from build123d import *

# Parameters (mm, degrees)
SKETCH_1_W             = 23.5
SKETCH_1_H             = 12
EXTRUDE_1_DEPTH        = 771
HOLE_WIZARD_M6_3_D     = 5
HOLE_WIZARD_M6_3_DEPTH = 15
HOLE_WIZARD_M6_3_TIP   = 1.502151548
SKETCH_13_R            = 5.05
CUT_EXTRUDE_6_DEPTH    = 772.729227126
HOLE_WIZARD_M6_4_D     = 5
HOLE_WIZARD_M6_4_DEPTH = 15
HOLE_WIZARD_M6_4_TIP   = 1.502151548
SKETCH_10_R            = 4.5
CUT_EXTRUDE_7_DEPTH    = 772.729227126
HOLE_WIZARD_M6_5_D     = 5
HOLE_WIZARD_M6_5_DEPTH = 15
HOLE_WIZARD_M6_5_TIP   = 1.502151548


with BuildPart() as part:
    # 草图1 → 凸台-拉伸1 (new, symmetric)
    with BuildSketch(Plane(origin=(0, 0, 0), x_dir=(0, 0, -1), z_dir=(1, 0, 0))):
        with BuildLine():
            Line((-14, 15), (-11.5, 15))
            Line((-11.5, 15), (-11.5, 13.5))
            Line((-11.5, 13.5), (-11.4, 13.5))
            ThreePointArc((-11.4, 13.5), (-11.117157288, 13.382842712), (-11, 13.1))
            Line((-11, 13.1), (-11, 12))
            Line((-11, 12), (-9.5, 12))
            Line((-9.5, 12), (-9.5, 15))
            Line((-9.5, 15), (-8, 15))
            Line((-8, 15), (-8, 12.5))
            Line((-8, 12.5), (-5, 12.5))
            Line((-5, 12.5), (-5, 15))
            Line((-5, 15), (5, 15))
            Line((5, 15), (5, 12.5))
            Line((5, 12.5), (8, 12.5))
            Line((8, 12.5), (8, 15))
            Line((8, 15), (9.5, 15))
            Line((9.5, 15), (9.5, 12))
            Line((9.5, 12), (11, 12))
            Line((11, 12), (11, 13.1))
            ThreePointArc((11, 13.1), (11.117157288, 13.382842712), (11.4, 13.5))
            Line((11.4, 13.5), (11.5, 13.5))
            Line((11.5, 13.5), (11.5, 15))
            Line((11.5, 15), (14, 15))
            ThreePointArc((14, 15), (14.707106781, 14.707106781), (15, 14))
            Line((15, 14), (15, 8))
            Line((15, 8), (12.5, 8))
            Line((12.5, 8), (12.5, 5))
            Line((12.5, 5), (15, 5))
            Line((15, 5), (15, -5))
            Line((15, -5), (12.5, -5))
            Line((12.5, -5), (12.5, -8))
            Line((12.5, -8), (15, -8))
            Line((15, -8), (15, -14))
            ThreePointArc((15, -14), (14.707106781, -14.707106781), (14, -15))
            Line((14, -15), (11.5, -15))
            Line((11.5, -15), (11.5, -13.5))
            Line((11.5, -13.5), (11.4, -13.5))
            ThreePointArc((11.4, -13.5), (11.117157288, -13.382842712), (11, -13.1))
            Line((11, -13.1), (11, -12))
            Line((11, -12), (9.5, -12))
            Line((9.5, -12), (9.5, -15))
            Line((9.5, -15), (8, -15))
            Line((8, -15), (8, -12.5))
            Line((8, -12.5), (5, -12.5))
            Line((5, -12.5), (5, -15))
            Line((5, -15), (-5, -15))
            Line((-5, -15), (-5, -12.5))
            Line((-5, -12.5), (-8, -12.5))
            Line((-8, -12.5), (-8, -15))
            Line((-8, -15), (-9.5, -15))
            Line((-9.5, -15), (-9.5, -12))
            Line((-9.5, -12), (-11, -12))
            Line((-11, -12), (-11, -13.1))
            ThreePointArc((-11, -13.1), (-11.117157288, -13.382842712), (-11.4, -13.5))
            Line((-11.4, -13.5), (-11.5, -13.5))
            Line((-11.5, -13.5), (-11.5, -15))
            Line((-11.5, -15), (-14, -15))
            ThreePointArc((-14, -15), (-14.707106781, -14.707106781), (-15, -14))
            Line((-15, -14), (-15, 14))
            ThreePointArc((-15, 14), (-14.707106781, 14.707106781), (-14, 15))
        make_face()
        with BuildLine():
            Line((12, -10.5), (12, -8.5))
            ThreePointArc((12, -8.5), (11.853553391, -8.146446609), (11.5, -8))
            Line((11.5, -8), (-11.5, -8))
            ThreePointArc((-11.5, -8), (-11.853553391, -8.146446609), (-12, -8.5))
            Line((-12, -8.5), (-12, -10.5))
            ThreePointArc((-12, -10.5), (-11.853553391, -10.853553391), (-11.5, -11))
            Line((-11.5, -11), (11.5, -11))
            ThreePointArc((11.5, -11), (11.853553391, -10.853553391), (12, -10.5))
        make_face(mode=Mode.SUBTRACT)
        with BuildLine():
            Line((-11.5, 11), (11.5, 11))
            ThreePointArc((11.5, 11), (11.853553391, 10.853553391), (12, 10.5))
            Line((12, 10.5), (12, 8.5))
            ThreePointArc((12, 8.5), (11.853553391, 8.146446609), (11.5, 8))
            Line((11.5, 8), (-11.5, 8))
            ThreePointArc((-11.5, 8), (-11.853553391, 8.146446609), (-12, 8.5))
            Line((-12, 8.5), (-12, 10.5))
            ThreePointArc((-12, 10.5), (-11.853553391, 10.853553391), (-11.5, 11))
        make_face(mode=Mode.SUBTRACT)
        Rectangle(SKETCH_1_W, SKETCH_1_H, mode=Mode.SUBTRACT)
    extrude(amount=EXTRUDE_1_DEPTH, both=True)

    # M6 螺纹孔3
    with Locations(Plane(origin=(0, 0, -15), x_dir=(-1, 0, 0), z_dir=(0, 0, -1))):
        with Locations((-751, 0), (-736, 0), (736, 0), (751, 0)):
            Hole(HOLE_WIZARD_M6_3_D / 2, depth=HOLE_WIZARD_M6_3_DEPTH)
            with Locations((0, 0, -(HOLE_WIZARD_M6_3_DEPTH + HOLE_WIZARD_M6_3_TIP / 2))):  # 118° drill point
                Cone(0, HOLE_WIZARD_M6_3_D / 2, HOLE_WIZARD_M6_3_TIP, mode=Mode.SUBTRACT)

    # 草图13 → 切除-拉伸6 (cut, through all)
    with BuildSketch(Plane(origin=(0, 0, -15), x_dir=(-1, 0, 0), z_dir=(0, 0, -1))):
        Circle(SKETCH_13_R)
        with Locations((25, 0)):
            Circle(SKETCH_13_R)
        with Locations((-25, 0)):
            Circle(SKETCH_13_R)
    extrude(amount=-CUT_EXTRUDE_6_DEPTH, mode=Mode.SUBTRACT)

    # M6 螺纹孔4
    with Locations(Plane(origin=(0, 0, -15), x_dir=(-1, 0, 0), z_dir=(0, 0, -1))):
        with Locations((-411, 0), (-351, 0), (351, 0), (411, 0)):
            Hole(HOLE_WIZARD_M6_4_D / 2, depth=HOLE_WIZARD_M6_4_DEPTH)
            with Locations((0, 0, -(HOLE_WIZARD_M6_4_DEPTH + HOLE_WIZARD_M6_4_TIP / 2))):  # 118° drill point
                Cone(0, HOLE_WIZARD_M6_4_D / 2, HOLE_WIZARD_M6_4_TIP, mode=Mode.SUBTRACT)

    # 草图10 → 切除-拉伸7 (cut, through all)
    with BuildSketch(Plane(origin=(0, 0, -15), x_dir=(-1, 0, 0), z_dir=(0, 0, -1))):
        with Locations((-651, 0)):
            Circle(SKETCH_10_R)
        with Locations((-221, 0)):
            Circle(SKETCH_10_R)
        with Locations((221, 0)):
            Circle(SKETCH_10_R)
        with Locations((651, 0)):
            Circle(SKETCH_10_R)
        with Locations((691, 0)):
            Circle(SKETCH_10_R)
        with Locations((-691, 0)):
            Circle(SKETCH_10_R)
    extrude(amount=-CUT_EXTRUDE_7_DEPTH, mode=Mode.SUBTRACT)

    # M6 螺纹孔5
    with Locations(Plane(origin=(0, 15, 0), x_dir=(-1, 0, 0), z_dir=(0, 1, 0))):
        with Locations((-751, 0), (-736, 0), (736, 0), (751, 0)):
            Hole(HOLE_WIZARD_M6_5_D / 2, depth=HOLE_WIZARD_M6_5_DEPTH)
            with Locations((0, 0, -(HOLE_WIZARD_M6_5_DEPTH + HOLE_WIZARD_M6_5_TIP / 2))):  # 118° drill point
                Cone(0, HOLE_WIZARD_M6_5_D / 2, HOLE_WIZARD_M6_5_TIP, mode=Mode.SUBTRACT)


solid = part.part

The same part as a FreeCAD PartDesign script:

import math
import FreeCAD as App
import Part
import Sketcher
from FreeCAD import Vector
Q = App.Units.Quantity


def add_polygon(sketch, points):
    """Adds a closed chain of lines whose ends are joined by coincident constraints."""
    first, n = sketch.GeometryCount, len(points)
    for a, b in zip(points, points[1:] + points[:1]):
        sketch.addGeometry(Part.LineSegment(App.Vector(*a, 0), App.Vector(*b, 0)), False)
    for i in range(n):
        sketch.addConstraint(Sketcher.Constraint("Coincident", first + i, 2, first + (i + 1) % n, 1))

doc = App.newDocument("Part")
body = doc.addObject("PartDesign::Body", "Body")

# Sketch on YZ plane
sketch1 = doc.addObject("Sketcher::SketchObject", "Sketch")
body.addObject(sketch1)
sketch1.AttachmentSupport = (doc.YZ_Plane, [""])
sketch1.MapMode = "FlatFace"
sketch1.addGeometry(Part.LineSegment(Vector(15, 11.5, 0), Vector(15, 14, 0)), False)  # 0
sketch1.addGeometry(Part.ArcOfCircle(Part.Circle(Vector(14, 14, 0), Vector(0, 0, 1), 1), math.radians(0), math.radians(90)), False)  # 1
sketch1.addGeometry(Part.LineSegment(Vector(14, 15, 0), Vector(-14, 15, 0)), False)  # 2
sketch1.addGeometry(Part.ArcOfCircle(Part.Circle(Vector(-14, 14, 0), Vector(0, 0, 1), 1), math.radians(90), math.radians(180)), False)  # 3
sketch1.addGeometry(Part.LineSegment(Vector(-15, 14, 0), Vector(-15, 11.5, 0)), False)  # 4
sketch1.addGeometry(Part.LineSegment(Vector(-15, 11.5, 0), Vector(-13.5, 11.5, 0)), False)  # 5
sketch1.addGeometry(Part.LineSegment(Vector(-13.5, 11.5, 0), Vector(-13.5, 11.4, 0)), False)  # 6
sketch1.addGeometry(Part.ArcOfCircle(Part.Circle(Vector(-13.1, 11.4, 0), Vector(0, 0, 1), 0.4), math.radians(-180), math.radians(-90)), False)  # 7
sketch1.addGeometry(Part.LineSegment(Vector(-13.1, 11, 0), Vector(-12, 11, 0)), False)  # 8
sketch1.addGeometry(Part.LineSegment(Vector(-12, 11, 0), Vector(-12, 9.5, 0)), False)  # 9
sketch1.addGeometry(Part.LineSegment(Vector(-12, 9.5, 0), Vector(-15, 9.5, 0)), False)  # 10
sketch1.addGeometry(Part.LineSegment(Vector(-15, 9.5, 0), Vector(-15, 8, 0)), False)  # 11
sketch1.addGeometry(Part.LineSegment(Vector(-15, 8, 0), Vector(-12.5, 8, 0)), False)  # 12
sketch1.addGeometry(Part.LineSegment(Vector(-12.5, 8, 0), Vector(-12.5, 5, 0)), False)  # 13
sketch1.addGeometry(Part.LineSegment(Vector(-12.5, 5, 0), Vector(-15, 5, 0)), False)  # 14
sketch1.addGeometry(Part.LineSegment(Vector(-15, 5, 0), Vector(-15, -5, 0)), False)  # 15
sketch1.addGeometry(Part.LineSegment(Vector(-15, -5, 0), Vector(-12.5, -5, 0)), False)  # 16
sketch1.addGeometry(Part.LineSegment(Vector(-12.5, -5, 0), Vector(-12.5, -8, 0)), False)  # 17
sketch1.addGeometry(Part.LineSegment(Vector(-12.5, -8, 0), Vector(-15, -8, 0)), False)  # 18
sketch1.addGeometry(Part.LineSegment(Vector(-15, -8, 0), Vector(-15, -9.5, 0)), False)  # 19
sketch1.addGeometry(Part.LineSegment(Vector(-15, -9.5, 0), Vector(-12, -9.5, 0)), False)  # 20
sketch1.addGeometry(Part.LineSegment(Vector(-12, -9.5, 0), Vector(-12, -11, 0)), False)  # 21
sketch1.addGeometry(Part.LineSegment(Vector(-12, -11, 0), Vector(-13.1, -11, 0)), False)  # 22
sketch1.addGeometry(Part.ArcOfCircle(Part.Circle(Vector(-13.1, -11.4, 0), Vector(0, 0, 1), 0.4), math.radians(90), math.radians(180)), False)  # 23
sketch1.addGeometry(Part.LineSegment(Vector(-13.5, -11.4, 0), Vector(-13.5, -11.5, 0)), False)  # 24
sketch1.addGeometry(Part.LineSegment(Vector(-13.5, -11.5, 0), Vector(-15, -11.5, 0)), False)  # 25
sketch1.addGeometry(Part.LineSegment(Vector(-15, -11.5, 0), Vector(-15, -14, 0)), False)  # 26
sketch1.addGeometry(Part.ArcOfCircle(Part.Circle(Vector(-14, -14, 0), Vector(0, 0, 1), 1), math.radians(-180), math.radians(-90)), False)  # 27
sketch1.addGeometry(Part.LineSegment(Vector(-14, -15, 0), Vector(-8, -15, 0)), False)  # 28
sketch1.addGeometry(Part.LineSegment(Vector(-8, -15, 0), Vector(-8, -12.5, 0)), False)  # 29
sketch1.addGeometry(Part.LineSegment(Vector(-8, -12.5, 0), Vector(-5, -12.5, 0)), False)  # 30
sketch1.addGeometry(Part.LineSegment(Vector(-5, -12.5, 0), Vector(-5, -15, 0)), False)  # 31
sketch1.addGeometry(Part.LineSegment(Vector(-5, -15, 0), Vector(5, -15, 0)), False)  # 32
sketch1.addGeometry(Part.LineSegment(Vector(5, -15, 0), Vector(5, -12.5, 0)), False)  # 33
sketch1.addGeometry(Part.LineSegment(Vector(5, -12.5, 0), Vector(8, -12.5, 0)), False)  # 34
sketch1.addGeometry(Part.LineSegment(Vector(8, -12.5, 0), Vector(8, -15, 0)), False)  # 35
sketch1.addGeometry(Part.LineSegment(Vector(8, -15, 0), Vector(14, -15, 0)), False)  # 36
sketch1.addGeometry(Part.ArcOfCircle(Part.Circle(Vector(14, -14, 0), Vector(0, 0, 1), 1), math.radians(-90), math.radians(0)), False)  # 37
sketch1.addGeometry(Part.LineSegment(Vector(15, -14, 0), Vector(15, -11.5, 0)), False)  # 38
sketch1.addGeometry(Part.LineSegment(Vector(15, -11.5, 0), Vector(13.5, -11.5, 0)), False)  # 39
sketch1.addGeometry(Part.LineSegment(Vector(13.5, -11.5, 0), Vector(13.5, -11.4, 0)), False)  # 40
sketch1.addGeometry(Part.ArcOfCircle(Part.Circle(Vector(13.1, -11.4, 0), Vector(0, 0, 1), 0.4), math.radians(0), math.radians(90)), False)  # 41
sketch1.addGeometry(Part.LineSegment(Vector(13.1, -11, 0), Vector(12, -11, 0)), False)  # 42
sketch1.addGeometry(Part.LineSegment(Vector(12, -11, 0), Vector(12, -9.5, 0)), False)  # 43
sketch1.addGeometry(Part.LineSegment(Vector(12, -9.5, 0), Vector(15, -9.5, 0)), False)  # 44
sketch1.addGeometry(Part.LineSegment(Vector(15, -9.5, 0), Vector(15, -8, 0)), False)  # 45
sketch1.addGeometry(Part.LineSegment(Vector(15, -8, 0), Vector(12.5, -8, 0)), False)  # 46
sketch1.addGeometry(Part.LineSegment(Vector(12.5, -8, 0), Vector(12.5, -5, 0)), False)  # 47
sketch1.addGeometry(Part.LineSegment(Vector(12.5, -5, 0), Vector(15, -5, 0)), False)  # 48
sketch1.addGeometry(Part.LineSegment(Vector(15, -5, 0), Vector(15, 5, 0)), False)  # 49
sketch1.addGeometry(Part.LineSegment(Vector(15, 5, 0), Vector(12.5, 5, 0)), False)  # 50
sketch1.addGeometry(Part.LineSegment(Vector(12.5, 5, 0), Vector(12.5, 8, 0)), False)  # 51
sketch1.addGeometry(Part.LineSegment(Vector(12.5, 8, 0), Vector(15, 8, 0)), False)  # 52
sketch1.addGeometry(Part.LineSegment(Vector(15, 8, 0), Vector(15, 9.5, 0)), False)  # 53
sketch1.addGeometry(Part.LineSegment(Vector(15, 9.5, 0), Vector(12, 9.5, 0)), False)  # 54
sketch1.addGeometry(Part.LineSegment(Vector(12, 9.5, 0), Vector(12, 11, 0)), False)  # 55
sketch1.addGeometry(Part.LineSegment(Vector(12, 11, 0), Vector(13.1, 11, 0)), False)  # 56
sketch1.addGeometry(Part.ArcOfCircle(Part.Circle(Vector(13.1, 11.4, 0), Vector(0, 0, 1), 0.4), math.radians(-90), math.radians(0)), False)  # 57
sketch1.addGeometry(Part.LineSegment(Vector(13.5, 11.4, 0), Vector(13.5, 11.5, 0)), False)  # 58
sketch1.addGeometry(Part.LineSegment(Vector(13.5, 11.5, 0), Vector(15, 11.5, 0)), False)  # 59
sketch1.addGeometry(Part.ArcOfCircle(Part.Circle(Vector(-10.5, -11.5, 0), Vector(0, 0, 1), 0.5), math.radians(180), math.radians(270)), False)  # 60
sketch1.addGeometry(Part.LineSegment(Vector(-11, -11.5, 0), Vector(-11, 11.5, 0)), False)  # 61
sketch1.addGeometry(Part.ArcOfCircle(Part.Circle(Vector(-10.5, 11.5, 0), Vector(0, 0, 1), 0.5), math.radians(90), math.radians(180)), False)  # 62
sketch1.addGeometry(Part.LineSegment(Vector(-10.5, 12, 0), Vector(-8.5, 12, 0)), False)  # 63
sketch1.addGeometry(Part.ArcOfCircle(Part.Circle(Vector(-8.5, 11.5, 0), Vector(0, 0, 1), 0.5), math.radians(0), math.radians(90)), False)  # 64
sketch1.addGeometry(Part.LineSegment(Vector(-8, 11.5, 0), Vector(-8, -11.5, 0)), False)  # 65
sketch1.addGeometry(Part.ArcOfCircle(Part.Circle(Vector(-8.5, -11.5, 0), Vector(0, 0, 1), 0.5), math.radians(-90), math.radians(0)), False)  # 66
sketch1.addGeometry(Part.LineSegment(Vector(-8.5, -12, 0), Vector(-10.5, -12, 0)), False)  # 67
add_polygon(sketch1, [(-6, 11.75), (6, 11.75), (6, -11.75), (-6, -11.75)])  # lines 68-71
sketch1.addGeometry(Part.LineSegment(Vector(11, 11.5, 0), Vector(11, -11.5, 0)), False)  # 72
sketch1.addGeometry(Part.ArcOfCircle(Part.Circle(Vector(10.5, -11.5, 0), Vector(0, 0, 1), 0.5), math.radians(-90), math.radians(0)), False)  # 73
sketch1.addGeometry(Part.LineSegment(Vector(10.5, -12, 0), Vector(8.5, -12, 0)), False)  # 74
sketch1.addGeometry(Part.ArcOfCircle(Part.Circle(Vector(8.5, -11.5, 0), Vector(0, 0, 1), 0.5), math.radians(180), math.radians(270)), False)  # 75
sketch1.addGeometry(Part.LineSegment(Vector(8, -11.5, 0), Vector(8, 11.5, 0)), False)  # 76
sketch1.addGeometry(Part.ArcOfCircle(Part.Circle(Vector(8.5, 11.5, 0), Vector(0, 0, 1), 0.5), math.radians(90), math.radians(180)), False)  # 77
sketch1.addGeometry(Part.LineSegment(Vector(8.5, 12, 0), Vector(10.5, 12, 0)), False)  # 78
sketch1.addGeometry(Part.ArcOfCircle(Part.Circle(Vector(10.5, 11.5, 0), Vector(0, 0, 1), 0.5), math.radians(0), math.radians(90)), False)  # 79
sketch1.addConstraint([
    Sketcher.Constraint("Tangent", 0, 2, 1, 1),
    Sketcher.Constraint("Tangent", 1, 2, 2, 1),
    Sketcher.Constraint("Tangent", 2, 2, 3, 1),
    Sketcher.Constraint("Tangent", 3, 2, 4, 1),
    Sketcher.Constraint("Coincident", 4, 2, 5, 1),
    Sketcher.Constraint("Coincident", 5, 2, 6, 1),
    Sketcher.Constraint("Tangent", 6, 2, 7, 1),
    Sketcher.Constraint("Tangent", 7, 2, 8, 1),
    Sketcher.Constraint("Coincident", 8, 2, 9, 1),
    Sketcher.Constraint("Coincident", 9, 2, 10, 1),
    Sketcher.Constraint("Coincident", 10, 2, 11, 1),
    Sketcher.Constraint("Coincident", 11, 2, 12, 1),
    Sketcher.Constraint("Coincident", 12, 2, 13, 1),
    Sketcher.Constraint("Coincident", 13, 2, 14, 1),
    Sketcher.Constraint("Coincident", 14, 2, 15, 1),
    Sketcher.Constraint("Coincident", 15, 2, 16, 1),
    Sketcher.Constraint("Coincident", 16, 2, 17, 1),
    Sketcher.Constraint("Coincident", 17, 2, 18, 1),
    Sketcher.Constraint("Coincident", 18, 2, 19, 1),
    Sketcher.Constraint("Coincident", 19, 2, 20, 1),
    Sketcher.Constraint("Coincident", 20, 2, 21, 1),
    Sketcher.Constraint("Coincident", 21, 2, 22, 1),
    Sketcher.Constraint("Tangent", 22, 2, 23, 1),
    Sketcher.Constraint("Tangent", 23, 2, 24, 1),
    Sketcher.Constraint("Coincident", 24, 2, 25, 1),
    Sketcher.Constraint("Coincident", 25, 2, 26, 1),
    Sketcher.Constraint("Tangent", 26, 2, 27, 1),
    Sketcher.Constraint("Tangent", 27, 2, 28, 1),
    Sketcher.Constraint("Coincident", 28, 2, 29, 1),
    Sketcher.Constraint("Coincident", 29, 2, 30, 1),
    Sketcher.Constraint("Coincident", 30, 2, 31, 1),
    Sketcher.Constraint("Coincident", 31, 2, 32, 1),
    Sketcher.Constraint("Coincident", 32, 2, 33, 1),
    Sketcher.Constraint("Coincident", 33, 2, 34, 1),
    Sketcher.Constraint("Coincident", 34, 2, 35, 1),
    Sketcher.Constraint("Coincident", 35, 2, 36, 1),
    Sketcher.Constraint("Tangent", 36, 2, 37, 1),
    Sketcher.Constraint("Tangent", 37, 2, 38, 1),
    Sketcher.Constraint("Coincident", 38, 2, 39, 1),
    Sketcher.Constraint("Coincident", 39, 2, 40, 1),
    Sketcher.Constraint("Tangent", 40, 2, 41, 1),
    Sketcher.Constraint("Tangent", 41, 2, 42, 1),
    Sketcher.Constraint("Coincident", 42, 2, 43, 1),
    Sketcher.Constraint("Coincident", 43, 2, 44, 1),
    Sketcher.Constraint("Coincident", 44, 2, 45, 1),
    Sketcher.Constraint("Coincident", 45, 2, 46, 1),
    Sketcher.Constraint("Coincident", 46, 2, 47, 1),
    Sketcher.Constraint("Coincident", 47, 2, 48, 1),
    Sketcher.Constraint("Coincident", 48, 2, 49, 1),
    Sketcher.Constraint("Coincident", 49, 2, 50, 1),
    Sketcher.Constraint("Coincident", 50, 2, 51, 1),
    Sketcher.Constraint("Coincident", 51, 2, 52, 1),
    Sketcher.Constraint("Coincident", 52, 2, 53, 1),
    Sketcher.Constraint("Coincident", 53, 2, 54, 1),
    Sketcher.Constraint("Coincident", 54, 2, 55, 1),
    Sketcher.Constraint("Coincident", 55, 2, 56, 1),
    Sketcher.Constraint("Tangent", 56, 2, 57, 1),
    Sketcher.Constraint("Tangent", 57, 2, 58, 1),
    Sketcher.Constraint("Coincident", 58, 2, 59, 1),
    Sketcher.Constraint("Coincident", 59, 2, 0, 1),
    Sketcher.Constraint("Tangent", 60, 1, 61, 1),
    Sketcher.Constraint("Tangent", 61, 2, 62, 2),
    Sketcher.Constraint("Tangent", 62, 1, 63, 1),
    Sketcher.Constraint("Tangent", 63, 2, 64, 2),
    Sketcher.Constraint("Tangent", 64, 1, 65, 1),
    Sketcher.Constraint("Tangent", 65, 2, 66, 2),
    Sketcher.Constraint("Tangent", 66, 1, 67, 1),
    Sketcher.Constraint("Tangent", 67, 2, 60, 2),
    Sketcher.Constraint("Tangent", 72, 2, 73, 2),
    Sketcher.Constraint("Tangent", 73, 1, 74, 1),
    Sketcher.Constraint("Tangent", 74, 2, 75, 2),
    Sketcher.Constraint("Tangent", 75, 1, 76, 1),
    Sketcher.Constraint("Tangent", 76, 2, 77, 2),
    Sketcher.Constraint("Tangent", 77, 1, 78, 1),
    Sketcher.Constraint("Tangent", 78, 2, 79, 2),
    Sketcher.Constraint("Tangent", 79, 1, 72, 1),
    Sketcher.Constraint("Vertical", 0),
    Sketcher.Constraint("Horizontal", 2),
    Sketcher.Constraint("Vertical", 4),
    Sketcher.Constraint("Horizontal", 5),
    Sketcher.Constraint("Vertical", 6),
    Sketcher.Constraint("Horizontal", 8),
    Sketcher.Constraint("Vertical", 9),
    Sketcher.Constraint("Horizontal", 10),
    Sketcher.Constraint("Vertical", 11),
    Sketcher.Constraint("Horizontal", 12),
    Sketcher.Constraint("Vertical", 13),
    Sketcher.Constraint("Horizontal", 14),
    Sketcher.Constraint("Vertical", 15),
    Sketcher.Constraint("Horizontal", 16),
    Sketcher.Constraint("Vertical", 17),
    Sketcher.Constraint("Horizontal", 18),
    Sketcher.Constraint("Vertical", 19),
    Sketcher.Constraint("Horizontal", 20),
    Sketcher.Constraint("Vertical", 21),
    Sketcher.Constraint("Horizontal", 22),
    Sketcher.Constraint("Vertical", 24),
    Sketcher.Constraint("Horizontal", 25),
    Sketcher.Constraint("Vertical", 26),
    Sketcher.Constraint("Horizontal", 28),
    Sketcher.Constraint("Vertical", 29),
    Sketcher.Constraint("Horizontal", 30),
    Sketcher.Constraint("Vertical", 31),
    Sketcher.Constraint("Horizontal", 32),
    Sketcher.Constraint("Vertical", 33),
    Sketcher.Constraint("Horizontal", 34),
    Sketcher.Constraint("Vertical", 35),
    Sketcher.Constraint("Horizontal", 36),
    Sketcher.Constraint("Vertical", 38),
    Sketcher.Constraint("Horizontal", 39),
    Sketcher.Constraint("Vertical", 40),
    Sketcher.Constraint("Horizontal", 42),
    Sketcher.Constraint("Vertical", 43),
    Sketcher.Constraint("Horizontal", 44),
    Sketcher.Constraint("Vertical", 45),
    Sketcher.Constraint("Horizontal", 46),
    Sketcher.Constraint("Vertical", 47),
    Sketcher.Constraint("Horizontal", 48),
    Sketcher.Constraint("Vertical", 49),
    Sketcher.Constraint("Horizontal", 50),
    Sketcher.Constraint("Vertical", 51),
    Sketcher.Constraint("Horizontal", 52),
    Sketcher.Constraint("Vertical", 53),
    Sketcher.Constraint("Horizontal", 54),
    Sketcher.Constraint("Vertical", 55),
    Sketcher.Constraint("Horizontal", 56),
    Sketcher.Constraint("Vertical", 58),
    Sketcher.Constraint("Horizontal", 59),
    Sketcher.Constraint("Vertical", 61),
    Sketcher.Constraint("Horizontal", 63),
    Sketcher.Constraint("Vertical", 65),
    Sketcher.Constraint("Horizontal", 67),
    Sketcher.Constraint("Horizontal", 68),
    Sketcher.Constraint("Vertical", 69),
    Sketcher.Constraint("Horizontal", 70),
    Sketcher.Constraint("Vertical", 71),
    Sketcher.Constraint("Vertical", 72),
    Sketcher.Constraint("Horizontal", 74),
    Sketcher.Constraint("Vertical", 76),
    Sketcher.Constraint("Horizontal", 78),
    Sketcher.Constraint("Equal", 1, 3),
    Sketcher.Constraint("Equal", 7, 23),
    Sketcher.Constraint("Equal", 3, 27),
    Sketcher.Constraint("Equal", 27, 37),
    Sketcher.Constraint("Equal", 23, 41),
    Sketcher.Constraint("Equal", 41, 57),
    Sketcher.Constraint("Equal", 60, 62),
    Sketcher.Constraint("Equal", 62, 64),
    Sketcher.Constraint("Equal", 64, 66),
    Sketcher.Constraint("Equal", 66, 73),
    Sketcher.Constraint("Equal", 73, 75),
    Sketcher.Constraint("Equal", 75, 77),
    Sketcher.Constraint("Equal", 77, 79),
    Sketcher.Constraint("Symmetric", 1, 3, 27, 3, -1, 1),
    Sketcher.Constraint("Symmetric", 3, 3, 37, 3, -1, 1),
    Sketcher.Constraint("Symmetric", 7, 3, 41, 3, -1, 1),
    Sketcher.Constraint("Symmetric", 23, 3, 57, 3, -1, 1),
    Sketcher.Constraint("Symmetric", 62, 3, 73, 3, -1, 1),
    Sketcher.Constraint("Symmetric", 66, 3, 77, 3, -1, 1),
    Sketcher.Constraint("Symmetric", 9, 2, 43, 2, -1, 1),
    Sketcher.Constraint("Symmetric", 11, 2, 45, 2, -1, 1),
    Sketcher.Constraint("Symmetric", 13, 2, 47, 2, -1, 1),
    Sketcher.Constraint("Symmetric", 15, 2, 49, 2, -1, 1),
    Sketcher.Constraint("Symmetric", 17, 2, 51, 2, -1, 1),
    Sketcher.Constraint("Symmetric", 19, 2, 53, 2, -1, 1),
    Sketcher.Constraint("Symmetric", 68, 2, 70, 2, -1, 1),
    Sketcher.Constraint("Symmetric", 23, 3, 41, 3, -2),
    Sketcher.Constraint("Symmetric", 30, 2, 33, 2, -2),
    Sketcher.Constraint("Symmetric", 25, 2, 38, 2, -2),
    Sketcher.Constraint("Symmetric", 20, 2, 43, 2, -2),
    Sketcher.Constraint("Symmetric", 18, 2, 45, 2, -2),
    Sketcher.Constraint("Symmetric", 16, 2, 47, 2, -2),
    Sketcher.Constraint("Horizontal", 66, 3, 73, 3),
    Sketcher.Constraint("Horizontal", 79, 3, 4, 2),
    Sketcher.Constraint("Horizontal", 75, 3, 24, 2),
    Sketcher.Constraint("Horizontal", 28, 2, 31, 2),
    Sketcher.Constraint("Horizontal", 5, 2, 58, 2),
    Sketcher.Constraint("Vertical", 4, 2, 10, 2),
    Sketcher.Constraint("Vertical", 11, 2, 14, 2),
    Sketcher.Constraint("Vertical", 43, 2, 54, 2),
    Sketcher.Constraint("Vertical", 29, 2, 64, 1),
    Sketcher.Constraint("Vertical", 35, 2, 75, 1),
    Sketcher.Constraint("Equal", 20, 30),
    Sketcher.Constraint("Equal", 52, 0),
    Sketcher.Constraint("Equal", 59, 9),
    Sketcher.Constraint("Equal", 9, 11),
    Sketcher.Constraint("Equal", 54, 13),
    Sketcher.Constraint("Equal", 32, 15),
    Sketcher.Constraint("Equal", 26, 29),
    Sketcher.Constraint("Radius", 1, Q("1 mm")),
    Sketcher.Constraint("Radius", 7, Q("0.4 mm")),
    Sketcher.Constraint("Radius", 60, Q("0.5 mm")),
    Sketcher.Constraint("DistanceX", 2, 2, 2, 1, Q("28 mm")),
    Sketcher.Constraint("DistanceX", 10, 2, 10, 1, Q("3 mm")),
    Sketcher.Constraint("DistanceX", 28, 1, 28, 2, Q("6 mm")),
    Sketcher.Constraint("DistanceX", 63, 1, 63, 2, Q("2 mm")),
    Sketcher.Constraint("DistanceX", 68, 1, 68, 2, Q("12 mm")),
    Sketcher.Constraint("DistanceY", 61, 1, 61, 2, Q("23 mm")),
    Sketcher.Constraint("DistanceX", 5, 1, 5, 2, Q("1.5 mm")),
    Sketcher.Constraint("DistanceX", 12, 1, 12, 2, Q("2.5 mm")),
    Sketcher.Constraint("DistanceY", 69, 2, 69, 1, Q("23.5 mm")),
])
pad1 = doc.addObject("PartDesign::Pad", "Pad")
body.addObject(pad1)
pad1.Profile = sketch1
pad1.Length = 1542
pad1.Midplane = True

# Sketch on XY plane
sketch2 = doc.addObject("Sketcher::SketchObject", "Sketch001")
body.addObject(sketch2)
sketch2.AttachmentSupport = (doc.XY_Plane, [""])
sketch2.MapMode = "FlatFace"
sketch2.AttachmentOffset = App.Placement(Vector(0, 0, -15), App.Rotation())
sketch2.addGeometry([
    Part.Circle(Vector(751, 0, 0), Vector(0, 0, 1), 2.5),
    Part.Circle(Vector(736, 0, 0), Vector(0, 0, 1), 2.5),
    Part.Circle(Vector(-736, 0, 0), Vector(0, 0, 1), 2.5),
    Part.Circle(Vector(-751, 0, 0), Vector(0, 0, 1), 2.5),
], False)
sketch2.addConstraint([
    Sketcher.Constraint("Equal", 0, 1),
    Sketcher.Constraint("Equal", 1, 2),
    Sketcher.Constraint("Equal", 2, 3),
    Sketcher.Constraint("Symmetric", 1, 3, 2, 3, -1, 1),
    Sketcher.Constraint("Symmetric", 0, 3, 3, 3, -1, 1),
    Sketcher.Constraint("PointOnObject", 0, 3, -1),
    Sketcher.Constraint("PointOnObject", 1, 3, -1),
    Sketcher.Constraint("Diameter", 0, Q("5 mm")),
    Sketcher.Constraint("DistanceX", -1, 1, 0, 3, Q("751 mm")),
    Sketcher.Constraint("DistanceX", -1, 1, 1, 3, Q("736 mm")),
])
doc.recompute()
hole = doc.addObject("PartDesign::Hole", "Hole")
body.addObject(hole)
hole.Profile = sketch2
hole.ThreadType = "None"
hole.Diameter = 5
hole.DepthType = "Dimension"
hole.Depth = 15
hole.DrillPoint = "Angled"
hole.DrillPointAngle = 118
hole.Reversed = True

# Sketch on XY plane
sketch3 = doc.addObject("Sketcher::SketchObject", "Sketch002")
body.addObject(sketch3)
sketch3.AttachmentSupport = (doc.XY_Plane, [""])
sketch3.MapMode = "FlatFace"
sketch3.AttachmentOffset = App.Placement(Vector(0, 0, -15), App.Rotation())
sketch3.addGeometry([
    Part.Circle(Vector(0, 0, 0), Vector(0, 0, 1), 5),
    Part.Circle(Vector(-25, 0, 0), Vector(0, 0, 1), 5),
    Part.Circle(Vector(25, 0, 0), Vector(0, 0, 1), 5),
], False)
sketch3.addConstraint([
    Sketcher.Constraint("Coincident", 0, 3, -1, 1),
    Sketcher.Constraint("Equal", 0, 1),
    Sketcher.Constraint("Equal", 1, 2),
    Sketcher.Constraint("Symmetric", 1, 3, 2, 3, -1, 1),
    Sketcher.Constraint("PointOnObject", 1, 3, -1),
    Sketcher.Constraint("Diameter", 0, Q("10.1 mm")),
    Sketcher.Constraint("DistanceX", 1, 3, -1, 1, Q("25 mm")),
])
pocket1 = doc.addObject("PartDesign::Pocket", "Pocket")
body.addObject(pocket1)
pocket1.Profile = sketch3
pocket1.Type = "ThroughAll"
pocket1.Reversed = True

# Sketch on XY plane
sketch4 = doc.addObject("Sketcher::SketchObject", "Sketch003")
body.addObject(sketch4)
sketch4.AttachmentSupport = (doc.XY_Plane, [""])
sketch4.MapMode = "FlatFace"
sketch4.AttachmentOffset = App.Placement(Vector(0, 0, -15), App.Rotation())
sketch4.addGeometry([
    Part.Circle(Vector(411, 0, 0), Vector(0, 0, 1), 2.5),
    Part.Circle(Vector(351, 0, 0), Vector(0, 0, 1), 2.5),
    Part.Circle(Vector(-351, 0, 0), Vector(0, 0, 1), 2.5),
    Part.Circle(Vector(-411, 0, 0), Vector(0, 0, 1), 2.5),
], False)
sketch4.addConstraint([
    Sketcher.Constraint("Equal", 0, 1),
    Sketcher.Constraint("Equal", 1, 2),
    Sketcher.Constraint("Equal", 2, 3),
    Sketcher.Constraint("Symmetric", 1, 3, 2, 3, -1, 1),
    Sketcher.Constraint("Symmetric", 0, 3, 3, 3, -1, 1),
    Sketcher.Constraint("PointOnObject", 0, 3, -1),
    Sketcher.Constraint("PointOnObject", 1, 3, -1),
    Sketcher.Constraint("Diameter", 0, Q("5 mm")),
    Sketcher.Constraint("DistanceX", -1, 1, 0, 3, Q("411 mm")),
    Sketcher.Constraint("DistanceX", -1, 1, 1, 3, Q("351 mm")),
])
doc.recompute()
hole2 = doc.addObject("PartDesign::Hole", "Hole001")
body.addObject(hole2)
hole2.Profile = sketch4
hole2.ThreadType = "None"
hole2.Diameter = 5
hole2.DepthType = "Dimension"
hole2.Depth = 15
hole2.DrillPoint = "Angled"
hole2.DrillPointAngle = 118
hole2.Reversed = True

# Sketch on XY plane
sketch5 = doc.addObject("Sketcher::SketchObject", "Sketch004")
body.addObject(sketch5)
sketch5.AttachmentSupport = (doc.XY_Plane, [""])
sketch5.MapMode = "FlatFace"
sketch5.AttachmentOffset = App.Placement(Vector(0, 0, -15), App.Rotation())
sketch5.addGeometry([
    Part.Circle(Vector(651, 0, 0), Vector(0, 0, 1), 4.5),  # 0
    Part.Circle(Vector(221, 0, 0), Vector(0, 0, 1), 4.5),  # 1
    Part.Circle(Vector(-221, 0, 0), Vector(0, 0, 1), 4.5),  # 2
    Part.Circle(Vector(-651, 0, 0), Vector(0, 0, 1), 4.5),  # 3
    Part.Circle(Vector(-691, 0, 0), Vector(0, 0, 1), 4.5),  # 4
    Part.Circle(Vector(691, 0, 0), Vector(0, 0, 1), 4.5),  # 5
], False)
sketch5.addConstraint([
    Sketcher.Constraint("Equal", 0, 1),
    Sketcher.Constraint("Equal", 1, 2),
    Sketcher.Constraint("Equal", 2, 3),
    Sketcher.Constraint("Equal", 3, 4),
    Sketcher.Constraint("Equal", 4, 5),
    Sketcher.Constraint("Symmetric", 1, 3, 2, 3, -1, 1),
    Sketcher.Constraint("Symmetric", 0, 3, 3, 3, -1, 1),
    Sketcher.Constraint("Symmetric", 4, 3, 5, 3, -1, 1),
    Sketcher.Constraint("PointOnObject", 0, 3, -1),
    Sketcher.Constraint("PointOnObject", 1, 3, -1),
    Sketcher.Constraint("PointOnObject", 4, 3, -1),
    Sketcher.Constraint("Diameter", 0, Q("9 mm")),
    Sketcher.Constraint("DistanceX", -1, 1, 0, 3, Q("651 mm")),
    Sketcher.Constraint("DistanceX", -1, 1, 1, 3, Q("221 mm")),
    Sketcher.Constraint("DistanceX", 4, 3, -1, 1, Q("691 mm")),
])
pocket2 = doc.addObject("PartDesign::Pocket", "Pocket001")
body.addObject(pocket2)
pocket2.Profile = sketch5
pocket2.Type = "ThroughAll"
pocket2.Reversed = True

# Sketch on XZ plane
sketch6 = doc.addObject("Sketcher::SketchObject", "Sketch005")
body.addObject(sketch6)
sketch6.AttachmentSupport = (doc.XZ_Plane, [""])
sketch6.MapMode = "FlatFace"
sketch6.AttachmentOffset = App.Placement(Vector(0, 0, -15), App.Rotation())
sketch6.addGeometry([
    Part.Circle(Vector(751, 0, 0), Vector(0, 0, 1), 2.5),
    Part.Circle(Vector(736, 0, 0), Vector(0, 0, 1), 2.5),
    Part.Circle(Vector(-736, 0, 0), Vector(0, 0, 1), 2.5),
    Part.Circle(Vector(-751, 0, 0), Vector(0, 0, 1), 2.5),
], False)
sketch6.addConstraint([
    Sketcher.Constraint("Equal", 0, 1),
    Sketcher.Constraint("Equal", 1, 2),
    Sketcher.Constraint("Equal", 2, 3),
    Sketcher.Constraint("Symmetric", 1, 3, 2, 3, -1, 1),
    Sketcher.Constraint("Symmetric", 0, 3, 3, 3, -1, 1),
    Sketcher.Constraint("PointOnObject", 0, 3, -1),
    Sketcher.Constraint("PointOnObject", 1, 3, -1),
    Sketcher.Constraint("Diameter", 0, Q("5 mm")),
    Sketcher.Constraint("DistanceX", -1, 1, 0, 3, Q("751 mm")),
    Sketcher.Constraint("DistanceX", -1, 1, 1, 3, Q("736 mm")),
])
doc.recompute()
hole3 = doc.addObject("PartDesign::Hole", "Hole002")
body.addObject(hole3)
hole3.Profile = sketch6
hole3.ThreadType = "None"
hole3.Diameter = 5
hole3.DepthType = "Dimension"
hole3.Depth = 15
hole3.DrillPoint = "Angled"
hole3.DrillPointAngle = 118
hole3.Reversed = True

doc.recompute()
